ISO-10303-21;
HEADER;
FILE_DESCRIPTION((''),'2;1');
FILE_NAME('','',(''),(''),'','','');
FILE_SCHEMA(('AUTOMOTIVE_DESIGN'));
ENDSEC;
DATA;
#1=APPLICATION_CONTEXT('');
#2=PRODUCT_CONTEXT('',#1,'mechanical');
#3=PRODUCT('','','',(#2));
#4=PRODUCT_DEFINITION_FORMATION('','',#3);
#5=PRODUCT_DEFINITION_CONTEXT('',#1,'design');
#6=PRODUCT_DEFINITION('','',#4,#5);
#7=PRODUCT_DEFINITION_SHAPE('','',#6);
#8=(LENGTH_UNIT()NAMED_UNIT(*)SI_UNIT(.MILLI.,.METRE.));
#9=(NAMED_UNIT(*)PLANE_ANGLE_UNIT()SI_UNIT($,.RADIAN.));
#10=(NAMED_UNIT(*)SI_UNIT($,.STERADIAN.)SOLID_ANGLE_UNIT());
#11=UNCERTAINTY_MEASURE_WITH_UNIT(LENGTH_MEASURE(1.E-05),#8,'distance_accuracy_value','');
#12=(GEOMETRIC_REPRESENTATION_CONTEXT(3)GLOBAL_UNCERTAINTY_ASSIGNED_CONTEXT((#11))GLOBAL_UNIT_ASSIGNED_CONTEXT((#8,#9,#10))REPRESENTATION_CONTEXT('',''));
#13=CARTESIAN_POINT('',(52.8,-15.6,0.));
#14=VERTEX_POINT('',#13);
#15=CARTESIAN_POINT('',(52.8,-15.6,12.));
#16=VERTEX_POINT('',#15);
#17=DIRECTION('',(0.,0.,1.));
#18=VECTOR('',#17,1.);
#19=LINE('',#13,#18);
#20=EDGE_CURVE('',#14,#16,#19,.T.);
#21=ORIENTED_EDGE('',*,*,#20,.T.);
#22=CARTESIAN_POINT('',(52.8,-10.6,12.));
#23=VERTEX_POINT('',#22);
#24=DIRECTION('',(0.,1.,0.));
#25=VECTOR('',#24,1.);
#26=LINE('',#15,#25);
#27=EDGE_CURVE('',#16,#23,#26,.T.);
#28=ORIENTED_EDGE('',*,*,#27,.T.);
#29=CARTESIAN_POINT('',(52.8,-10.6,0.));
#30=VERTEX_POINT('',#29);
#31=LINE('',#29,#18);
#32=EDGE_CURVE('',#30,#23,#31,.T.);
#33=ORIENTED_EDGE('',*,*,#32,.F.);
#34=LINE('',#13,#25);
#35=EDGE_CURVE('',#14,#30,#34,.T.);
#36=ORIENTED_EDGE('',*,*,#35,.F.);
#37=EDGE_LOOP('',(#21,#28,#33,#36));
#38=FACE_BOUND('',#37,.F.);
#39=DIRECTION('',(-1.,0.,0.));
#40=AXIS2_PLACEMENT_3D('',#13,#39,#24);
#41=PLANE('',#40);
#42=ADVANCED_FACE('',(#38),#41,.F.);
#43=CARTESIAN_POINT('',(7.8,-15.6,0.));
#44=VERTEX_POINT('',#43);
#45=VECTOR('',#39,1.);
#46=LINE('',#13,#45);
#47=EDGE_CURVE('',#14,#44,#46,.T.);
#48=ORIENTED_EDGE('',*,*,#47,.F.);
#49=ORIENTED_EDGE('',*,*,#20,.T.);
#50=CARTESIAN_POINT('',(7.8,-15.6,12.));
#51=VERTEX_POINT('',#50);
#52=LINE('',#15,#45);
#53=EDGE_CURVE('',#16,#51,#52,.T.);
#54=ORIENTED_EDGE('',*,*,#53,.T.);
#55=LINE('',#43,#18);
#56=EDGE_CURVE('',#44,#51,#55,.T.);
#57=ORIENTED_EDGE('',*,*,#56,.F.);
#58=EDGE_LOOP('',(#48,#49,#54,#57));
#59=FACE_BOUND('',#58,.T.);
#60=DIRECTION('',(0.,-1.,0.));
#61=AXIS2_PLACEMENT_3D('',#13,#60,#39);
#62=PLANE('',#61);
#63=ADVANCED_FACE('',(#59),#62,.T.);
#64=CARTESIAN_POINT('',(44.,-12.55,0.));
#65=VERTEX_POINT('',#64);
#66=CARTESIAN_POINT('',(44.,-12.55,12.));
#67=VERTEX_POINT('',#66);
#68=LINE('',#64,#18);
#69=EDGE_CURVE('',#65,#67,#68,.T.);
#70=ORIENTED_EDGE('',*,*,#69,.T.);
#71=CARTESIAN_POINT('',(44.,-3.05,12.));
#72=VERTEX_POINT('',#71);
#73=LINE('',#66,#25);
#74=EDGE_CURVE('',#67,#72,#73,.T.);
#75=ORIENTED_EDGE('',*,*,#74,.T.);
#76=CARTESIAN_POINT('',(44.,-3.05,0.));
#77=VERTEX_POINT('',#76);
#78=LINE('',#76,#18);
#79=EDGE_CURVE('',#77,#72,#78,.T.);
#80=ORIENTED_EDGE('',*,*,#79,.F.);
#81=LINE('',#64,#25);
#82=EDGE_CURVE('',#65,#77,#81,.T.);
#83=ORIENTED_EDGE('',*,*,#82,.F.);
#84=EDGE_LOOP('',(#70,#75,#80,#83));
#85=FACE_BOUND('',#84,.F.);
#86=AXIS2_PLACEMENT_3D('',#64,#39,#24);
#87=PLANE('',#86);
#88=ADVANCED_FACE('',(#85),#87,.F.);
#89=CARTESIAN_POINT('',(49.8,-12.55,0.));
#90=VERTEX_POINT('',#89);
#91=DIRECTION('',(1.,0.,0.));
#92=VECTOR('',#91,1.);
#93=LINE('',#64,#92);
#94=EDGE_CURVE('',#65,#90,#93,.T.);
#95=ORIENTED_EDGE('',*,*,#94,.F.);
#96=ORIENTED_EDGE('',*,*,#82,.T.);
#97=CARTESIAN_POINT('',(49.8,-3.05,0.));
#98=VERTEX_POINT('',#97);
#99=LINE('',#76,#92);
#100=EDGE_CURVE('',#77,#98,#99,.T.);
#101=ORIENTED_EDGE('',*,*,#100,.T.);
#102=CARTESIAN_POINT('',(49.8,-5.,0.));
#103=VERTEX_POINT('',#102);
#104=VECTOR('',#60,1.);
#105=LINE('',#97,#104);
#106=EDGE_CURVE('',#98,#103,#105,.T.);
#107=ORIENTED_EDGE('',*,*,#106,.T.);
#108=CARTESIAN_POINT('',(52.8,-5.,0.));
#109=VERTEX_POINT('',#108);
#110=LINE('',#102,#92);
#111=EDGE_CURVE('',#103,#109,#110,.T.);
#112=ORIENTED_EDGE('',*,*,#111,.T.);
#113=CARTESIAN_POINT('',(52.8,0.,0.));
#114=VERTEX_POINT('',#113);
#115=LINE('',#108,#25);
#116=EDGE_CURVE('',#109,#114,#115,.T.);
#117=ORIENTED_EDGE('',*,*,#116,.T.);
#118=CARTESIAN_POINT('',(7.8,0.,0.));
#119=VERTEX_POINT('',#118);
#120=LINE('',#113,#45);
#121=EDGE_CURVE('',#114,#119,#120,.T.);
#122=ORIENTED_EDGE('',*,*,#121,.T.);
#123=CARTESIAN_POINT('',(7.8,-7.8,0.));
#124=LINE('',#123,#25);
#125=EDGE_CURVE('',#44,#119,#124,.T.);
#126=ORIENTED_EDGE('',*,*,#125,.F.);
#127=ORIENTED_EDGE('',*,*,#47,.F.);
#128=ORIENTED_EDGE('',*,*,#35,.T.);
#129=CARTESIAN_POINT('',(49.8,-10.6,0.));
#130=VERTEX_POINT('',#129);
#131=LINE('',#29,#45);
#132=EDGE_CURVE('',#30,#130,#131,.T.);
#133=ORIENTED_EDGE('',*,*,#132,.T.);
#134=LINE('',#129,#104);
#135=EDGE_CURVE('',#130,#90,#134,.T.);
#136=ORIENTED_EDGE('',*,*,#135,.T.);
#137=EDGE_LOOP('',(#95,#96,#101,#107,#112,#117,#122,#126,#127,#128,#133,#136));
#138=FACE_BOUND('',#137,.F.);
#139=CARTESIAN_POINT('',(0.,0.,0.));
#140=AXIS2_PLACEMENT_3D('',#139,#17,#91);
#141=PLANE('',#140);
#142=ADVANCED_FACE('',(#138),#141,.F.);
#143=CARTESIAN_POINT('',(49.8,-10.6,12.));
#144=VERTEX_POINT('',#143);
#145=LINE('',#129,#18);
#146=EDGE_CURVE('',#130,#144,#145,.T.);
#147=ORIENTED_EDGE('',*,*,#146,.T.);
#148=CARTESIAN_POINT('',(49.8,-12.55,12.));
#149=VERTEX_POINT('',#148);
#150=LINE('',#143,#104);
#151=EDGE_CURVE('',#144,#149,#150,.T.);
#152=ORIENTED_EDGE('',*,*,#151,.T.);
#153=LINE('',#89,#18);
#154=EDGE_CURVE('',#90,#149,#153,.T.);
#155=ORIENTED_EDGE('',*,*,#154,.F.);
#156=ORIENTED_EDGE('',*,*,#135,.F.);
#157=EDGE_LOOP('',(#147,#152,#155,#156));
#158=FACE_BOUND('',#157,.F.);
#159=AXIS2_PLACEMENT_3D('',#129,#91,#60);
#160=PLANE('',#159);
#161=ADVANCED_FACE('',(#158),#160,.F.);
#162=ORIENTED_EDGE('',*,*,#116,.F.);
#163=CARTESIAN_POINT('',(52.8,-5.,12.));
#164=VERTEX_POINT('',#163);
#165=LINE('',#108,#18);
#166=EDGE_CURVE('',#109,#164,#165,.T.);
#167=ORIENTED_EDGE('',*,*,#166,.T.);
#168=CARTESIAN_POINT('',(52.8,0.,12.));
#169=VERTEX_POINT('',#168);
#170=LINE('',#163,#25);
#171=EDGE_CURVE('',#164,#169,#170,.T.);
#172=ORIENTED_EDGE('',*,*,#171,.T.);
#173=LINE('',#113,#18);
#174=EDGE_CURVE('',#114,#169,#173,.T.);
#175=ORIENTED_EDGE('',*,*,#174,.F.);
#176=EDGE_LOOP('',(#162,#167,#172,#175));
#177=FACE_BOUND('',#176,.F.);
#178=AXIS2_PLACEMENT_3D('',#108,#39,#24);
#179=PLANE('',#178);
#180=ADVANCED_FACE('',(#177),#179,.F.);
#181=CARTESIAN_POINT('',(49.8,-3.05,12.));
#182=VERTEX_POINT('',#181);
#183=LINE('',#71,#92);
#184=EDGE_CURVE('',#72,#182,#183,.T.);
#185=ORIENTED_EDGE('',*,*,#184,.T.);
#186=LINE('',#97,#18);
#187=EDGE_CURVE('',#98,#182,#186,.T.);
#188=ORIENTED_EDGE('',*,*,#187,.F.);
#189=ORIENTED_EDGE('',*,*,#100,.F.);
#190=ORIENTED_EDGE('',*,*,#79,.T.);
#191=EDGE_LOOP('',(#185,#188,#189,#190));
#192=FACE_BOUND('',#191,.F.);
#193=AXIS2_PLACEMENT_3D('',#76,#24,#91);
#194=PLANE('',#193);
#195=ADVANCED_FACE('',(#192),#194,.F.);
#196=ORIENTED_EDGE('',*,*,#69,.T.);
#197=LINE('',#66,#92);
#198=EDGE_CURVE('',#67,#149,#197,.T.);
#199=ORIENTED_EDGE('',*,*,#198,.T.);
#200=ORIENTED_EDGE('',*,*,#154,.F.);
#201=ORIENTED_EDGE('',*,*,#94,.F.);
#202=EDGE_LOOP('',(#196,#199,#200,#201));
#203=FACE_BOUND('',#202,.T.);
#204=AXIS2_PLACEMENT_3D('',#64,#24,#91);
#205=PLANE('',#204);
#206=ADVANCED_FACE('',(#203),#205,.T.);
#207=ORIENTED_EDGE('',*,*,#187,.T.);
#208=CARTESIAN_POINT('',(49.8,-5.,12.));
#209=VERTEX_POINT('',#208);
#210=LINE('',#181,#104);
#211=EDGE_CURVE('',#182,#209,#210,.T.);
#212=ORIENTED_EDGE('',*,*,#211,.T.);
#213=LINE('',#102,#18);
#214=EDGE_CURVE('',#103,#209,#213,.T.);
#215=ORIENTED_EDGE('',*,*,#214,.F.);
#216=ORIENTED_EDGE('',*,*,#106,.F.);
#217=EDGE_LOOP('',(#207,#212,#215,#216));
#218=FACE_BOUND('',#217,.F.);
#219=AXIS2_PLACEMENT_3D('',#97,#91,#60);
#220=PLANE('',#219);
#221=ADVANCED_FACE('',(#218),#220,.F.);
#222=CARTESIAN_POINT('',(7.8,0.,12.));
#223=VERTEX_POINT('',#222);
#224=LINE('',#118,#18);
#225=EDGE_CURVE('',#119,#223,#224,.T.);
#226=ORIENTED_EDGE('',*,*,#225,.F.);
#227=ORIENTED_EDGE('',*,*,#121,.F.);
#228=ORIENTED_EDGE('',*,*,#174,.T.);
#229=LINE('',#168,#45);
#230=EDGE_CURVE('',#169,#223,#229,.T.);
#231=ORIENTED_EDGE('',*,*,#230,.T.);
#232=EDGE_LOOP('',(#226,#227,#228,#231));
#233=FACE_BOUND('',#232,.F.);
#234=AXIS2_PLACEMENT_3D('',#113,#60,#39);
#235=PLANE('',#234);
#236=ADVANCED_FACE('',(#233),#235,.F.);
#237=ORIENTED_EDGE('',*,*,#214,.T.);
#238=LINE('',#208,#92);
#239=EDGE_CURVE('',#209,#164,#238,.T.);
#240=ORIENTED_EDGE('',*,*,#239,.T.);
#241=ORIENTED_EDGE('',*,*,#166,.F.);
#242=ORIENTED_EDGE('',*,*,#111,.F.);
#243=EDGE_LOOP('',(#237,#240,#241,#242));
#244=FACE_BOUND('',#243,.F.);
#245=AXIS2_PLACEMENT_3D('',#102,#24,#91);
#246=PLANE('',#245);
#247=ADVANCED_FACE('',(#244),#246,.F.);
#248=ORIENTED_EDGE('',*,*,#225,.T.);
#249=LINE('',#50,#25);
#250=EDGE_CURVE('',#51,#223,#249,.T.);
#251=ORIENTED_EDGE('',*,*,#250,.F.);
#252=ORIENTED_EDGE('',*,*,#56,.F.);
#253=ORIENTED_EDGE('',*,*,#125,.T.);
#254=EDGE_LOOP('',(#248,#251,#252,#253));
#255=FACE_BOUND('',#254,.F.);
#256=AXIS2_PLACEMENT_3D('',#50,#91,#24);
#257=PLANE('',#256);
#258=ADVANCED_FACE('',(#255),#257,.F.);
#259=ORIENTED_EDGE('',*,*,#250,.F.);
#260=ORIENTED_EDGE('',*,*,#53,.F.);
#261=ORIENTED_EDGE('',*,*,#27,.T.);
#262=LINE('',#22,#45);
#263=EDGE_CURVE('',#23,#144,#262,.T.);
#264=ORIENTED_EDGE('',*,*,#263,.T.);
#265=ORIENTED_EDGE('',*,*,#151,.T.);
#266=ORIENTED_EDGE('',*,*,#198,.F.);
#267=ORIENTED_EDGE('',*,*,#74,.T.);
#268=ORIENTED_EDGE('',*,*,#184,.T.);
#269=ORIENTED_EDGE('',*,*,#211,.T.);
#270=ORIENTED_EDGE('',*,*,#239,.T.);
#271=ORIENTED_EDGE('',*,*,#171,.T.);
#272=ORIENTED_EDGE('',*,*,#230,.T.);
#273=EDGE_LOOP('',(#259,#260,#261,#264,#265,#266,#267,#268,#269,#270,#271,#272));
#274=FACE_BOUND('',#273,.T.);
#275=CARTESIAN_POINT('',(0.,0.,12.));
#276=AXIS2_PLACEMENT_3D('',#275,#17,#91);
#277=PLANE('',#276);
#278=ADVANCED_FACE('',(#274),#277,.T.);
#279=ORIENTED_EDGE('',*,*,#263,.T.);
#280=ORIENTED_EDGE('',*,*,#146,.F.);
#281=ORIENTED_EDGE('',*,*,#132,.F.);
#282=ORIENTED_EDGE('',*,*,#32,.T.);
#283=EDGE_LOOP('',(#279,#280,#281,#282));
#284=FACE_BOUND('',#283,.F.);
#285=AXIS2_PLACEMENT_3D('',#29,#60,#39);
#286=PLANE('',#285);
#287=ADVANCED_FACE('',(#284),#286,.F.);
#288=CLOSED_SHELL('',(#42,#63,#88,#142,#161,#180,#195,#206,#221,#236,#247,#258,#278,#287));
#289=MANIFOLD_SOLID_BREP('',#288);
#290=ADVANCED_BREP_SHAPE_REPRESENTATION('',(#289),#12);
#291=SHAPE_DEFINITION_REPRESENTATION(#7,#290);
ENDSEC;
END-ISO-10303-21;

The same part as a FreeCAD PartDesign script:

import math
import FreeCAD as App
import Part
import Sketcher
from FreeCAD import Vector


def add_polygon(sketch, points):
    """Adds a closed chain of lines whose ends are joined by coincident constraints."""
    first, n = sketch.GeometryCount, len(points)
    for a, b in zip(points, points[1:] + points[:1]):
        sketch.addGeometry(Part.LineSegment(App.Vector(*a, 0), App.Vector(*b, 0)), False)
    for i in range(n):
        sketch.addConstraint(Sketcher.Constraint("Coincident", first + i, 2, first + (i + 1) % n, 1))

doc = App.newDocument("Part")
body = doc.addObject("PartDesign::Body", "Body")

sketch1 = doc.addObject("Sketcher::SketchObject", "Sketch")
body.addObject(sketch1)
sketch1.AttachmentSupport = (doc.XY_Plane, [""])
sketch1.MapMode = "FlatFace"
sketch1.addGeometry([
    Part.LineSegment(Vector(7.8, -15.6, 0), Vector(52.8, -15.6, 0)),
    Part.LineSegment(Vector(52.8, -15.6, 0), Vector(52.8, -10.6, 0)),
    Part.LineSegment(Vector(52.8, -10.6, 0), Vector(49.8, -10.6, 0)),
    Part.LineSegment(Vector(49.8, -10.6, 0), Vector(49.8, -12.6, 0)),
    Part.LineSegment(Vector(49.8, -12.6, 0), Vector(44, -12.6, 0)),
    Part.LineSegment(Vector(44, -12.6, 0), Vector(44, -3, 0)),
    Part.LineSegment(Vector(44, -3, 0), Vector(49.8, -3, 0)),
    Part.LineSegment(Vector(49.8, -3, 0), Vector(49.8, -5, 0)),
    Part.LineSegment(Vector(49.8, -5, 0), Vector(52.8, -5, 0)),
    Part.LineSegment(Vector(52.8, -5, 0), Vector(52.8, 0, 0)),
    Part.LineSegment(Vector(52.8, 0, 0), Vector(7.8, 0, 0)),
    Part.ArcOfCircle(Part.Circle(Vector(7.8, -7.8, 0), Vector(0, 0, 1), 7.8), math.radians(90), math.radians(270)),
], False)
sketch1.addConstraint([
    Sketcher.Constraint("Coincident", 0, 2, 1, 1),
    Sketcher.Constraint("Coincident", 1, 2, 2, 1),
    Sketcher.Constraint("Coincident", 2, 2, 3, 1),
    Sketcher.Constraint("Coincident", 3, 2, 4, 1),
    Sketcher.Constraint("Coincident", 4, 2, 5, 1),
    Sketcher.Constraint("Coincident", 5, 2, 6, 1),
    Sketcher.Constraint("Coincident", 6, 2, 7, 1),
    Sketcher.Constraint("Coincident", 7, 2, 8, 1),
    Sketcher.Constraint("Coincident", 8, 2, 9, 1),
    Sketcher.Constraint("Coincident", 9, 2, 10, 1),
    Sketcher.Constraint("Tangent", 10, 2, 11, 1),
    Sketcher.Constraint("Tangent", 11, 2, 0, 1),
    Sketcher.Constraint("Horizontal", 0),
    Sketcher.Constraint("Vertical", 1),
    Sketcher.Constraint("Horizontal", 2),
    Sketcher.Constraint("Vertical", 3),
    Sketcher.Constraint("Horizontal", 4),
    Sketcher.Constraint("Vertical", 5),
    Sketcher.Constraint("Horizontal", 6),
    Sketcher.Constraint("Vertical", 7),
    Sketcher.Constraint("Horizontal", 8),
    Sketcher.Constraint("Vertical", 9),
    Sketcher.Constraint("Horizontal", 10),
    Sketcher.Constraint("PointOnObject", 9, 2, -1),
    Sketcher.Constraint("Vertical", 3, 2, 6, 2),
    Sketcher.Constraint("Vertical", 1, 2, 8, 2),
    Sketcher.Constraint("Equal", 3, 7),
    Sketcher.Constraint("Equal", 1, 9),
    Sketcher.Constraint("Radius", 11, 7.8),
    Sketcher.Constraint("DistanceX", 0, 1, 0, 2, 45.0),
    Sketcher.Constraint("DistanceX", 2, 2, 2, 1, 3.0),
    Sketcher.Constraint("DistanceX", 4, 2, 4, 1, 5.8),
    Sketcher.Constraint("DistanceY", 5, 1, 5, 2, 9.5),
    Sketcher.Constraint("DistanceX", -1, 1, 4, 2, 44.0),
    Sketcher.Constraint("DistanceY", 2, 2, 7, 2, 5.6),
])
pad1 = doc.addObject("PartDesign::Pad", "Pad")
body.addObject(pad1)
pad1.Profile = sketch1
pad1.Length = 12

sketch2 = doc.addObject("Sketcher::SketchObject", "Sketch001")
body.addObject(sketch2)
sketch2.AttachmentSupport = (doc.XY_Plane, [""])
sketch2.MapMode = "FlatFace"
sketch2.AttachmentOffset = App.Placement(Vector(0, 0, 12), App.Rotation())
add_polygon(sketch2, [(8, -16), (8, 0), (0, 0), (0, -16)])
sketch2.addConstraint([
    Sketcher.Constraint("Vertical", 0),
    Sketcher.Constraint("Horizontal", 1),
    Sketcher.Constraint("Vertical", 2),
    Sketcher.Constraint("Horizontal", 3),
    Sketcher.Constraint("Coincident", 1, 2, -1, 1),
    Sketcher.Constraint("DistanceX", 1, 2, 1, 1, 7.8),
    Sketcher.Constraint("DistanceY", 0, 1, 0, 2, 15.6),
])
pocket1 = doc.addObject("PartDesign::Pocket", "Pocket")
body.addObject(pocket1)
pocket1.Profile = sketch2
pocket1.Type = "ThroughAll"

doc.recompute()
